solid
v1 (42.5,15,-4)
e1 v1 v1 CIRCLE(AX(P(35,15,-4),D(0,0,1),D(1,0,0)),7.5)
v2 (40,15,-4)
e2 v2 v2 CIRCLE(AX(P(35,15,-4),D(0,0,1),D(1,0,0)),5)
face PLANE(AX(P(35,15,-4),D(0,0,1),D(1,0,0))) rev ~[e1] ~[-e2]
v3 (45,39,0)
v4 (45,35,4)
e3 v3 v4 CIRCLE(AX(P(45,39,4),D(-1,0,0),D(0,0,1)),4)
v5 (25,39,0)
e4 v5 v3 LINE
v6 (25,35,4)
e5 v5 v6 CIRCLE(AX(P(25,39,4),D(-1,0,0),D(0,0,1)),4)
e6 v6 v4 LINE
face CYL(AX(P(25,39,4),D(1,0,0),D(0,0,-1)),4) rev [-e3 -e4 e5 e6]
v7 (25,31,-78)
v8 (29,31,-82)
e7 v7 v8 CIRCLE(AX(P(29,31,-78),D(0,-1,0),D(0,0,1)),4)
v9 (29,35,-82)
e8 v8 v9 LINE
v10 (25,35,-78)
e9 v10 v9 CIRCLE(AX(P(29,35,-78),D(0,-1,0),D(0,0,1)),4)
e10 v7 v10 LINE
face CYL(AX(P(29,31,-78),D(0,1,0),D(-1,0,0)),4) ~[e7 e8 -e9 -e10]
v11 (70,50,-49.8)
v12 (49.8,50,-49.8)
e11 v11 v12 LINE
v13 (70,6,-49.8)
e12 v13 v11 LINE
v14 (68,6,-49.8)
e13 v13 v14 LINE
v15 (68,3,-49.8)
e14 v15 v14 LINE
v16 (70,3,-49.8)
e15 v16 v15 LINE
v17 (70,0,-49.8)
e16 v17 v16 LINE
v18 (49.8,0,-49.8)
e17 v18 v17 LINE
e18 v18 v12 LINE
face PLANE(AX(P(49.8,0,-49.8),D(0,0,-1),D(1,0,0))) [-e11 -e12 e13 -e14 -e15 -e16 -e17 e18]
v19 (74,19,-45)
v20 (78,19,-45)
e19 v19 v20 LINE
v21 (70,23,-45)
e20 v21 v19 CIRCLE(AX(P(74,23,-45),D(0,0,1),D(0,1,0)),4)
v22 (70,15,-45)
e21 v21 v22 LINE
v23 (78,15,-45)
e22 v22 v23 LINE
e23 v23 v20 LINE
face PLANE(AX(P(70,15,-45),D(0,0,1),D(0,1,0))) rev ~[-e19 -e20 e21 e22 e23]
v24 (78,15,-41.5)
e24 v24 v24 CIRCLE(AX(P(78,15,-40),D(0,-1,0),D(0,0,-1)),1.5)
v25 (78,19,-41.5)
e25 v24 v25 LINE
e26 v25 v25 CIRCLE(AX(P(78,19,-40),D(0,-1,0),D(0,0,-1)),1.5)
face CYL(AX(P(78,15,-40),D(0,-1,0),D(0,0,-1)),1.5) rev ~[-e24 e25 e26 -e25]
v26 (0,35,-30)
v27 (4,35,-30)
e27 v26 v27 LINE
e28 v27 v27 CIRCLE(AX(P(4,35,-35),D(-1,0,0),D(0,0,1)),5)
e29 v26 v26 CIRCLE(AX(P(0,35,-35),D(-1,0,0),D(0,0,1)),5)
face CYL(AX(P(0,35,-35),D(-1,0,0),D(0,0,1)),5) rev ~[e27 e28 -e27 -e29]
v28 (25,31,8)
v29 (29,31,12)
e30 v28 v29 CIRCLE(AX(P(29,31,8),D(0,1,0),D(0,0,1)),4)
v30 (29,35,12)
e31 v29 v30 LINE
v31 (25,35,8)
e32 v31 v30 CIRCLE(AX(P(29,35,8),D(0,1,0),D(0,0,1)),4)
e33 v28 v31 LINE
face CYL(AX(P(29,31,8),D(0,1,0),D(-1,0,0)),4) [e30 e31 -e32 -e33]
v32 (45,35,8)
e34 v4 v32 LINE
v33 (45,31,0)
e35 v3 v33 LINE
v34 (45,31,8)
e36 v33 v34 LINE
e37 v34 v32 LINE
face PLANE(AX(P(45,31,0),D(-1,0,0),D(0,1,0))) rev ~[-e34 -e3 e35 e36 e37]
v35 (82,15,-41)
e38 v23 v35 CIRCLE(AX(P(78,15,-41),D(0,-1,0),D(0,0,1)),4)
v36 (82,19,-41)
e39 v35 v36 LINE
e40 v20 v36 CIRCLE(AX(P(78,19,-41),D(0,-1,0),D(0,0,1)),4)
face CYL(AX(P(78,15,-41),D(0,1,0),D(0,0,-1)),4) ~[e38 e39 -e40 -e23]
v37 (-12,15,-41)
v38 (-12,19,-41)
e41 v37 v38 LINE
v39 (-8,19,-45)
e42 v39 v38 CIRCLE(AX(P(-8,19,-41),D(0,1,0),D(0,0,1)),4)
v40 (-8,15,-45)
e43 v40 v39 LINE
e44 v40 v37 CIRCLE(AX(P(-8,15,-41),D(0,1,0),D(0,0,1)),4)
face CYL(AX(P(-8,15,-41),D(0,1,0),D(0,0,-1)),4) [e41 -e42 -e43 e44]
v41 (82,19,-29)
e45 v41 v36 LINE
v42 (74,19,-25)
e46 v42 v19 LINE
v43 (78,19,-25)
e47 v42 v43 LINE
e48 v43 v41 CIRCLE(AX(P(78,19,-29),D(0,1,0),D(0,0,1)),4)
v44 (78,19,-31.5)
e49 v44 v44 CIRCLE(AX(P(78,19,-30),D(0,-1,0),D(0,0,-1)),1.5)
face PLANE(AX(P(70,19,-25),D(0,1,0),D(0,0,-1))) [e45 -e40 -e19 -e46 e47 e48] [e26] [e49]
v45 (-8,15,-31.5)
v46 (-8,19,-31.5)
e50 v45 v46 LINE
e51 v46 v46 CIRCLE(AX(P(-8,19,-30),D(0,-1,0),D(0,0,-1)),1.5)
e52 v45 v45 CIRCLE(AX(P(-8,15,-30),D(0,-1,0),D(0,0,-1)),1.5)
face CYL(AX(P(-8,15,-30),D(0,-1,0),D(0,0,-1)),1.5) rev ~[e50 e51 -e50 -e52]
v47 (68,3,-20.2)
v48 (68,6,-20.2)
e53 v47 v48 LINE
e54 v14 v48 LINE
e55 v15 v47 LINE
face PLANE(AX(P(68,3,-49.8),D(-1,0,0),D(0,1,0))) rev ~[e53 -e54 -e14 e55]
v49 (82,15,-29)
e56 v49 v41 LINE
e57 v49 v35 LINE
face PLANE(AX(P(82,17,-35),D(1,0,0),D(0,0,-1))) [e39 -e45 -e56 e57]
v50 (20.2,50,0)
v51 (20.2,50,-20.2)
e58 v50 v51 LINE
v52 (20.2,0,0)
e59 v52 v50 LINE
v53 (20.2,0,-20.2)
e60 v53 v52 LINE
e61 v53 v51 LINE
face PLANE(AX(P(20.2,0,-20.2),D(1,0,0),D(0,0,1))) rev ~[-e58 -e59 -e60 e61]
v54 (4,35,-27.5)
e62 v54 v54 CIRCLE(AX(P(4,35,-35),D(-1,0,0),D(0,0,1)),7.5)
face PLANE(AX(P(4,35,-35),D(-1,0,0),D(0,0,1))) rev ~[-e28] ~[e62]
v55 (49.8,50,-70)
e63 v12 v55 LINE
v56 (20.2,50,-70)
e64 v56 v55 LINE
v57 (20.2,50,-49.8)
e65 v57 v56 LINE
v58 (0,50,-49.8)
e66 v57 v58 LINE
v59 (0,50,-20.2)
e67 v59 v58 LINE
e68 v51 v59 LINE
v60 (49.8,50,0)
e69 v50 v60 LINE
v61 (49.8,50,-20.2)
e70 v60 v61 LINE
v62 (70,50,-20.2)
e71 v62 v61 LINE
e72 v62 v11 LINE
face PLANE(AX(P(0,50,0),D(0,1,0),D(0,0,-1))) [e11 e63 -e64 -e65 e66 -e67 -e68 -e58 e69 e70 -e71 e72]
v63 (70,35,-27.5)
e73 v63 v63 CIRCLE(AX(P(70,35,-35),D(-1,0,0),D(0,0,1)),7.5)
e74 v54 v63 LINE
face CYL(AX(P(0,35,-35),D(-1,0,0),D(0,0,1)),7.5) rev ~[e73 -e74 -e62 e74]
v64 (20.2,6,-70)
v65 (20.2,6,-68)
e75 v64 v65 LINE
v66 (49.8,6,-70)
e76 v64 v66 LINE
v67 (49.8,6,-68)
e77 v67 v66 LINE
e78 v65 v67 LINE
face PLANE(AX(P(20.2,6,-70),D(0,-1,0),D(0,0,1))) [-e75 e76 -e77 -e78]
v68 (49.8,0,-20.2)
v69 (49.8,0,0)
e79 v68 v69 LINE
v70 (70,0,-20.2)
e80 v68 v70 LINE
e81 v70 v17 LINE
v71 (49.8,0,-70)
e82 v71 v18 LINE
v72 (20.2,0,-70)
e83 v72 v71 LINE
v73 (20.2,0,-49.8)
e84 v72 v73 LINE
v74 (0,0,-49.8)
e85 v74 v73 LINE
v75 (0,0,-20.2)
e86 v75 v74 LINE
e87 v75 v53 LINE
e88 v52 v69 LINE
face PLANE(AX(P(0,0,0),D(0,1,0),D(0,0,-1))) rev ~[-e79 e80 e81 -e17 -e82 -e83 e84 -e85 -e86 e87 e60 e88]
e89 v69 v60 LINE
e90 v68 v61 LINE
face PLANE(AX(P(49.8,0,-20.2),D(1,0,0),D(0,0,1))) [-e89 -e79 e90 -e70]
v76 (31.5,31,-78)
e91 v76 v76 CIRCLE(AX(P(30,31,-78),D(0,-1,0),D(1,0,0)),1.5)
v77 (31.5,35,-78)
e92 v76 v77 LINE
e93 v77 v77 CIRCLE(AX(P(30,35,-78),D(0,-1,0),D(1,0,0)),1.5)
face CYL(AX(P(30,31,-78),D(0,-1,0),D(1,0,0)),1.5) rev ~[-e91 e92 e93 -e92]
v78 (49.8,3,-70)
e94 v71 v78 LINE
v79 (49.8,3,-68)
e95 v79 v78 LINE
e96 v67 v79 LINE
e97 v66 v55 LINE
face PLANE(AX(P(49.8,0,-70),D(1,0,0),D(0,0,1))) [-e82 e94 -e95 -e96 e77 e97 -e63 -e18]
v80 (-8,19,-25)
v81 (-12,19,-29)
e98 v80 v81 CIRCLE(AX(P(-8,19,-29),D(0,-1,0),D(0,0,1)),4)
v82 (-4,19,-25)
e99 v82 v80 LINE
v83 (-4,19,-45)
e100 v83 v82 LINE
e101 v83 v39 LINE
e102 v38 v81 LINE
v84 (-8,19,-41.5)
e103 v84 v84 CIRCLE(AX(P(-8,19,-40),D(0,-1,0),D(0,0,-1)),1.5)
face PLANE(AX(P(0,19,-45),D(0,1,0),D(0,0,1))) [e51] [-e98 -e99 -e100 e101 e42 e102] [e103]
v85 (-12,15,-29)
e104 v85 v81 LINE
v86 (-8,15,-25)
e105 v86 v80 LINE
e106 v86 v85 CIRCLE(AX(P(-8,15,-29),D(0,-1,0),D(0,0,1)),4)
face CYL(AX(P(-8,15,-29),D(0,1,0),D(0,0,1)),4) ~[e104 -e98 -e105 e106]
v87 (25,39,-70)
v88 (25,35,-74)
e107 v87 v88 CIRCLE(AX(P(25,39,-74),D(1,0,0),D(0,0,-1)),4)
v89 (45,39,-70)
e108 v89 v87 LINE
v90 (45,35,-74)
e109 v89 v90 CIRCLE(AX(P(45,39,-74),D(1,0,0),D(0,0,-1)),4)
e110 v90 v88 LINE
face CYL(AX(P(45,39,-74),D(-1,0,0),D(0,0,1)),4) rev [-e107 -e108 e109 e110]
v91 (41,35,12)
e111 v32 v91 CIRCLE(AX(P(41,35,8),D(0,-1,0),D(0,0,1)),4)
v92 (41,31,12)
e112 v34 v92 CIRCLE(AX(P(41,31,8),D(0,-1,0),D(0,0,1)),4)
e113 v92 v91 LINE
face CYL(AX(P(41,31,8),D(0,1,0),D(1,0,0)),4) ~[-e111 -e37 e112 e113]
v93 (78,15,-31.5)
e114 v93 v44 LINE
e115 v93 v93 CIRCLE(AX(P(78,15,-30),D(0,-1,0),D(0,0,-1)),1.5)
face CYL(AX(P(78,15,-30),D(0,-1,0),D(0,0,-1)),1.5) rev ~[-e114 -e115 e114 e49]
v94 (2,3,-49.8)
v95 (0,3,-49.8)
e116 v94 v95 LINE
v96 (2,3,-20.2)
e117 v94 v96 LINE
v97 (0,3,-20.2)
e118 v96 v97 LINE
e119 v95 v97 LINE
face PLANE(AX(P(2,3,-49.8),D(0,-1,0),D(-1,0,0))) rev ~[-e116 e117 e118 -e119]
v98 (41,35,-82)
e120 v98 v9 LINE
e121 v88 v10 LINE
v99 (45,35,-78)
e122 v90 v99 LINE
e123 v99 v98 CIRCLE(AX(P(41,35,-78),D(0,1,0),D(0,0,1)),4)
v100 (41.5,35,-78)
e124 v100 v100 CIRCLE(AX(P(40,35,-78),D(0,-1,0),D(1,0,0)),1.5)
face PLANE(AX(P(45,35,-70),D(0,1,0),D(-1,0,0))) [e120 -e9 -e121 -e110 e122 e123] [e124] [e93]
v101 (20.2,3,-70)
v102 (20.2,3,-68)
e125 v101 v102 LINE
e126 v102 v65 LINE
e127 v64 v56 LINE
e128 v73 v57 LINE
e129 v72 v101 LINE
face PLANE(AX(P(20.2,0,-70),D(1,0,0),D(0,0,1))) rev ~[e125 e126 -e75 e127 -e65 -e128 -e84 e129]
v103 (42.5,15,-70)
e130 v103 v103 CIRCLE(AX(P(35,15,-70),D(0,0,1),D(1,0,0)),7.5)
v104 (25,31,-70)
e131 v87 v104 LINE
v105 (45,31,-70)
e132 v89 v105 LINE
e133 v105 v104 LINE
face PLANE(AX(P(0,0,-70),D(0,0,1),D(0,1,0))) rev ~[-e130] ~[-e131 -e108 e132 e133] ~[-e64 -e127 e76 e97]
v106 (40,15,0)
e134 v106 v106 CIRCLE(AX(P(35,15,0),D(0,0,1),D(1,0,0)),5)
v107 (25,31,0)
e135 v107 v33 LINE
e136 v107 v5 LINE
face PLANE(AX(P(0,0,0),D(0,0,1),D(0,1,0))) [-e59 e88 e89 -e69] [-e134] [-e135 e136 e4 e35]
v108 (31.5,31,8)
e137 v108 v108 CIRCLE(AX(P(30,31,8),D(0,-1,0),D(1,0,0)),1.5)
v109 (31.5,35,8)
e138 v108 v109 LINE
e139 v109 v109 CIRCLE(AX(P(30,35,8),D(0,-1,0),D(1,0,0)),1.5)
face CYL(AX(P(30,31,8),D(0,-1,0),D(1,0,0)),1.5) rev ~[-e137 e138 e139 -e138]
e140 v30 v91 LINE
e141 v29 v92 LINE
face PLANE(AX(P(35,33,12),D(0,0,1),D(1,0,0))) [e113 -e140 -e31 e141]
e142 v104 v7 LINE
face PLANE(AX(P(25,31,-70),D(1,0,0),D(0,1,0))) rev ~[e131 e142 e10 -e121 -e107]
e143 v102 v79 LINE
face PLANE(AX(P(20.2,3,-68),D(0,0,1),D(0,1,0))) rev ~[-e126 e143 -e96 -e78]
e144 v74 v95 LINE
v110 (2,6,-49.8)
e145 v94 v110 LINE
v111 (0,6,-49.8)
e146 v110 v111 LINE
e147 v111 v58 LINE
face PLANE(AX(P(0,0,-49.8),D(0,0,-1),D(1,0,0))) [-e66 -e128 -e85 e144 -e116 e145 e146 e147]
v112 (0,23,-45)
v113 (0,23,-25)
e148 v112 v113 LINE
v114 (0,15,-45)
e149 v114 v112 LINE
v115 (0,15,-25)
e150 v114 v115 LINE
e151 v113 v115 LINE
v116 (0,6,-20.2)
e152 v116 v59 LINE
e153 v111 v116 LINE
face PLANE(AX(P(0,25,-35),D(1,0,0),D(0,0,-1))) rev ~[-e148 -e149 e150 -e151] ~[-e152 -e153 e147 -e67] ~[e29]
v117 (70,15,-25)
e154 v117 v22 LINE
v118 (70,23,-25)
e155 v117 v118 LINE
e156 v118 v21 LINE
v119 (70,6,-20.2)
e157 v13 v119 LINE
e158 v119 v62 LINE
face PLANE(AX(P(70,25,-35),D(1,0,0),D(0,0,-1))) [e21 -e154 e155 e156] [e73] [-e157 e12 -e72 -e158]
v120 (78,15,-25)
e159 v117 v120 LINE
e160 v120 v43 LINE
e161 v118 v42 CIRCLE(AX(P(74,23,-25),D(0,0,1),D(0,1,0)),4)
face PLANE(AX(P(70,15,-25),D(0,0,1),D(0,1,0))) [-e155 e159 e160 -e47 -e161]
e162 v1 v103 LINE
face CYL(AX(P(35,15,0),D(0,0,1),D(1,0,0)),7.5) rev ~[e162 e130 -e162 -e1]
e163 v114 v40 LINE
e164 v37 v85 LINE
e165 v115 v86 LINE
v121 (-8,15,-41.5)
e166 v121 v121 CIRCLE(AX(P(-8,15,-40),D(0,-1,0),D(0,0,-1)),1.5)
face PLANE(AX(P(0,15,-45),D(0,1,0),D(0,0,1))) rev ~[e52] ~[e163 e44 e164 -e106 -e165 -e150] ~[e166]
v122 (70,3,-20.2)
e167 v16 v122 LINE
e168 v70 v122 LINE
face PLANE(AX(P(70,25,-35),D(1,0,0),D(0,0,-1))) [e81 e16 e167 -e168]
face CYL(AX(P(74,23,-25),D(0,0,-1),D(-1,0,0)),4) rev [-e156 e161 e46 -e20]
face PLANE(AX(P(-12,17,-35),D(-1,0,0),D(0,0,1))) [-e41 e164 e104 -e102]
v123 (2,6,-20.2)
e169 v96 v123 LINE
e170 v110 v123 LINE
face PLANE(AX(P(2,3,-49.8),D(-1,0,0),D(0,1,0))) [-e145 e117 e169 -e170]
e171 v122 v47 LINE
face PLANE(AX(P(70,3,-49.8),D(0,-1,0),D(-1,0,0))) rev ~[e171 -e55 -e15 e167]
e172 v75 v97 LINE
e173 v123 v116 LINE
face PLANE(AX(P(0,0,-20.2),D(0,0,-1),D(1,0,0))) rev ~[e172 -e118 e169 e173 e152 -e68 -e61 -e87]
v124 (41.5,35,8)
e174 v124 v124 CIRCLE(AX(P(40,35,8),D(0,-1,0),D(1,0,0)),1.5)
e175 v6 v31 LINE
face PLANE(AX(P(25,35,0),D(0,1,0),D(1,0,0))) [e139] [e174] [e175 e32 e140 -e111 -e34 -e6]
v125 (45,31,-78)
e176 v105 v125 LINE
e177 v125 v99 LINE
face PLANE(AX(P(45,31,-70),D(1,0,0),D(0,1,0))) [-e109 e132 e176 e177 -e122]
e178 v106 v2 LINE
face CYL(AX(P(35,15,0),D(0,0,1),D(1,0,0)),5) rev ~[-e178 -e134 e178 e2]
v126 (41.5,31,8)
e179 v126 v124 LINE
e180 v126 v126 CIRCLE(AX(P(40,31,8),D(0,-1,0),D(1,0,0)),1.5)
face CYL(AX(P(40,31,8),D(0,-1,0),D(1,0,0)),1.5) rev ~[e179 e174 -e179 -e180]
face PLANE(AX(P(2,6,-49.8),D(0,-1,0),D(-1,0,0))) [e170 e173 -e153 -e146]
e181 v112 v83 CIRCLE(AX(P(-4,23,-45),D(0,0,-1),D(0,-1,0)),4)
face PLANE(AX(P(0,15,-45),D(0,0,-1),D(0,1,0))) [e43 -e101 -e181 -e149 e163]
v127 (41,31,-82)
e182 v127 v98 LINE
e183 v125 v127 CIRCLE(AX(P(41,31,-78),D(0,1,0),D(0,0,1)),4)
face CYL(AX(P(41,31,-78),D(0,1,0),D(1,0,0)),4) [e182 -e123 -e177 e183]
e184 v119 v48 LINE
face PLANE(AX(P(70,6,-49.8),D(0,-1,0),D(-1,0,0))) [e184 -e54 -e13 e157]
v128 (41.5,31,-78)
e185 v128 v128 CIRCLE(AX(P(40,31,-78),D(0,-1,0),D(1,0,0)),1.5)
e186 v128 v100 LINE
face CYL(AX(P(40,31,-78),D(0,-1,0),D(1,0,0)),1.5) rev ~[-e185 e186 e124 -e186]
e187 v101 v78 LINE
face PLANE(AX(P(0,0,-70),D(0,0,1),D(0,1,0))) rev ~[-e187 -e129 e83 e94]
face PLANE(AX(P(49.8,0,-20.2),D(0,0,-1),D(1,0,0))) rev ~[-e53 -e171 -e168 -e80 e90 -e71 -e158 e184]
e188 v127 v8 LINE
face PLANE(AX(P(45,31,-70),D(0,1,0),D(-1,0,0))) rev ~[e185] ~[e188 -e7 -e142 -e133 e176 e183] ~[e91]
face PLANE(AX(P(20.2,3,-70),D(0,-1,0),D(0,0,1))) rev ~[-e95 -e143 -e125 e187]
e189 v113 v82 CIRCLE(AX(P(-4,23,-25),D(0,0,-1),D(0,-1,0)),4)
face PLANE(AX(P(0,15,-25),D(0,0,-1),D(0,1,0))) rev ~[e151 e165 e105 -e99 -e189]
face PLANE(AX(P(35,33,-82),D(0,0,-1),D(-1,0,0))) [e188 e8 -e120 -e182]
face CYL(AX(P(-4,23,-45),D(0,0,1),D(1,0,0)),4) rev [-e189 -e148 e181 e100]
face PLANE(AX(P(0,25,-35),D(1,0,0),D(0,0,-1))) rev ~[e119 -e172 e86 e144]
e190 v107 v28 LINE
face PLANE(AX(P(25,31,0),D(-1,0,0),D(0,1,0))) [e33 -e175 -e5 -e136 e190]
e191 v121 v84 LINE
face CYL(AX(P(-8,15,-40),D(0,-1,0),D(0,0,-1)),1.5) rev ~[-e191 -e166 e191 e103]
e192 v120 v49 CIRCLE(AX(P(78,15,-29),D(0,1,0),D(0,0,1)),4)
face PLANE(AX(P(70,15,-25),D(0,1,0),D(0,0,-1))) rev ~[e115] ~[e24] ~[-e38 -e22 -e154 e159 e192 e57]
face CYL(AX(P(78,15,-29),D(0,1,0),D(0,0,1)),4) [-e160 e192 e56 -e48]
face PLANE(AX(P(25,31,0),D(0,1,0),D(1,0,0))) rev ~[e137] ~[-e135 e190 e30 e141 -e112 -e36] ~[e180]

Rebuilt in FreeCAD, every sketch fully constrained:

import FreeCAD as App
import Part
import Sketcher
Q = App.Units.Quantity


def edges_at(feature, points):
    """Names of the edges that pass closest to the given points."""
    edges = feature.Shape.Edges
    near = lambda p: min(range(len(edges)), key=lambda i: edges[i].distToShape(Part.Vertex(*p))[0])
    return sorted({f"Edge{near(p) + 1}" for p in points})

doc = App.newDocument("Part")
body = doc.addObject("PartDesign::Body", "Body")

sketch1 = body.newObject("Sketcher::SketchObject", "Sketch")
sketch1.AttachmentSupport = (doc.getObject("YZ_Plane"), [""])
sketch1.MapMode = "FlatFace"
sketch1.addGeometry([
    Part.LineSegment(App.Vector(50, 0, 0), App.Vector(0, 0, 0)),
    Part.LineSegment(App.Vector(0, 0, 0), App.Vector(0, -70, 0)),
    Part.LineSegment(App.Vector(0, -70, 0), App.Vector(50, -70, 0)),
    Part.LineSegment(App.Vector(50, -70, 0), App.Vector(50, 0, 0)),
], False)
sketch1.addConstraint([
    Sketcher.Constraint("Coincident", 0, 2, 1, 1),
    Sketcher.Constraint("Coincident", 1, 2, 2, 1),
    Sketcher.Constraint("Coincident", 2, 2, 3, 1),
    Sketcher.Constraint("Coincident", 3, 2, 0, 1),
    Sketcher.Constraint("Horizontal", 0),
    Sketcher.Constraint("Vertical", 1),
    Sketcher.Constraint("Horizontal", 2),
    Sketcher.Constraint("Vertical", 3),
    Sketcher.Constraint("Coincident", 0, 2, -1, 1),
    Sketcher.Constraint("DistanceX", 0, 2, 0, 1, Q("50 mm")),
    Sketcher.Constraint("DistanceY", 1, 2, 1, 1, Q("70 mm")),
])
pad1 = body.newObject("PartDesign::Pad", "Pad")
pad1.Profile = sketch1
pad1.Length = 70

sketch2 = body.newObject("Sketcher::SketchObject", "Sketch001")
sketch2.AttachmentSupport = (doc.getObject("XY_Plane"), [""])
sketch2.MapMode = "FlatFace"
sketch2.addGeometry(Part.Circle(App.Vector(35, 15, 0), App.Vector(0, 0, 1), 7.5), False)
sketch2.addConstraint([
    Sketcher.Constraint("Diameter", 0, Q("15 mm")),
    Sketcher.Constraint("DistanceX", -1, 1, 0, 3, Q("35 mm")),
    Sketcher.Constraint("DistanceY", -1, 1, 0, 3, Q("15 mm")),
])
pocket1 = body.newObject("PartDesign::Pocket", "Pocket")
pocket1.Profile = sketch2
pocket1.Type = "ThroughAll"

sketch3 = body.newObject("Sketcher::SketchObject", "Sketch002")
sketch3.AttachmentSupport = (doc.getObject("YZ_Plane"), [""])
sketch3.MapMode = "FlatFace"
sketch3.addGeometry(Part.Circle(App.Vector(35, -35, 0), App.Vector(0, 0, 1), 7.5), False)
sketch3.addConstraint([
    Sketcher.Constraint("Diameter", 0, Q("15 mm")),
    Sketcher.Constraint("DistanceX", -1, 1, 0, 3, Q("35 mm")),
    Sketcher.Constraint("DistanceY", 0, 3, -1, 1, Q("35 mm")),
])
pocket2 = body.newObject("PartDesign::Pocket", "Pocket001")
pocket2.Profile = sketch3
pocket2.Type = "ThroughAll"
pocket2.Reversed = True

sketch4 = body.newObject("Sketcher::SketchObject", "Sketch003")
sketch4.AttachmentSupport = (doc.getObject("XZ_Plane"), [""])
sketch4.MapMode = "FlatFace"
sketch4.addGeometry([
    Part.LineSegment(App.Vector(0, -49.8, 0), App.Vector(0, -70, 0)),
    Part.LineSegment(App.Vector(0, -70, 0), App.Vector(20.2, -70, 0)),
    Part.LineSegment(App.Vector(20.2, -70, 0), App.Vector(20.2, -49.8, 0)),
    Part.LineSegment(App.Vector(20.2, -49.8, 0), App.Vector(0, -49.8, 0)),
    Part.LineSegment(App.Vector(0, 0, 0), App.Vector(0, -20.2, 0)),
    Part.LineSegment(App.Vector(0, -20.2, 0), App.Vector(20.2, -20.2, 0)),
    Part.LineSegment(App.Vector(20.2, -20.2, 0), App.Vector(20.2, 0, 0)),
    Part.LineSegment(App.Vector(20.2, 0, 0), App.Vector(0, 0, 0)),
    Part.LineSegment(App.Vector(49.8, 0, 0), App.Vector(49.8, -20.2, 0)),
    Part.LineSegment(App.Vector(49.8, -20.2, 0), App.Vector(70, -20.2, 0)),
    Part.LineSegment(App.Vector(70, -20.2, 0), App.Vector(70, 0, 0)),
    Part.LineSegment(App.Vector(70, 0, 0), App.Vector(49.8, 0, 0)),
    Part.LineSegment(App.Vector(49.8, -49.8, 0), App.Vector(49.8, -70, 0)),
    Part.LineSegment(App.Vector(49.8, -70, 0), App.Vector(70, -70, 0)),
    Part.LineSegment(App.Vector(70, -70, 0), App.Vector(70, -49.8, 0)),
    Part.LineSegment(App.Vector(70, -49.8, 0), App.Vector(49.8, -49.8, 0)),
], False)
sketch4.addConstraint([
    Sketcher.Constraint("Coincident", 0, 2, 1, 1),
    Sketcher.Constraint("Coincident", 1, 2, 2, 1),
    Sketcher.Constraint("Coincident", 2, 2, 3, 1),
    Sketcher.Constraint("Coincident", 3, 2, 0, 1),
    Sketcher.Constraint("Coincident", 4, 2, 5, 1),
    Sketcher.Constraint("Coincident", 5, 2, 6, 1),
    Sketcher.Constraint("Coincident", 6, 2, 7, 1),
    Sketcher.Constraint("Coincident", 7, 2, 4, 1),
    Sketcher.Constraint("Coincident", 8, 2, 9, 1),
    Sketcher.Constraint("Coincident", 9, 2, 10, 1),
    Sketcher.Constraint("Coincident", 10, 2, 11, 1),
    Sketcher.Constraint("Coincident", 11, 2, 8, 1),
    Sketcher.Constraint("Coincident", 12, 2, 13, 1),
    Sketcher.Constraint("Coincident", 13, 2, 14, 1),
    Sketcher.Constraint("Coincident", 14, 2, 15, 1),
    Sketcher.Constraint("Coincident", 15, 2, 12, 1),
    Sketcher.Constraint("Vertical", 0),
    Sketcher.Constraint("Horizontal", 1),
    Sketcher.Constraint("Vertical", 2),
    Sketcher.Constraint("Horizontal", 3),
    Sketcher.Constraint("Vertical", 4),
    Sketcher.Constraint("Horizontal", 5),
    Sketcher.Constraint("Vertical", 6),
    Sketcher.Constraint("Horizontal", 7),
    Sketcher.Constraint("Vertical", 8),
    Sketcher.Constraint("Horizontal", 9),
    Sketcher.Constraint("Vertical", 10),
    Sketcher.Constraint("Horizontal", 11),
    Sketcher.Constraint("Vertical", 12),
    Sketcher.Constraint("Horizontal", 13),
    Sketcher.Constraint("Vertical", 14),
    Sketcher.Constraint("Horizontal", 15),
    Sketcher.Constraint("Coincident", 7, 2, -1, 1),
    Sketcher.Constraint("PointOnObject", 0, 2, -2),
    Sketcher.Constraint("PointOnObject", 10, 2, -1),
    Sketcher.Constraint("Horizontal", 5, 2, 8, 2),
    Sketcher.Constraint("Horizontal", 1, 2, 12, 2),
    Sketcher.Constraint("Horizontal", 3, 2, 14, 2),
    Sketcher.Constraint("Vertical", 2, 2, 5, 2),
    Sketcher.Constraint("Vertical", 11, 2, 12, 2),
    Sketcher.Constraint("Vertical", 10, 2, 13, 2),
    Sketcher.Constraint("Equal", 7, 9),
    Sketcher.Constraint("Equal", 15, 0),
    Sketcher.Constraint("Equal", 2, 4),
    Sketcher.Constraint("DistanceX", 1, 1, 1, 2, Q("20.2 mm")),
    Sketcher.Constraint("DistanceY", 0, 2, -1, 1, Q("70 mm")),
    Sketcher.Constraint("DistanceX", -1, 1, 9, 2, Q("70 mm")),
])
pocket3 = body.newObject("PartDesign::Pocket", "Pocket002")
pocket3.Profile = sketch4
pocket3.Type = "ThroughAll"

sketch5 = body.newObject("Sketcher::SketchObject", "Sketch004")
sketch5.AttachmentSupport = (doc.getObject("XY_Plane"), [""])
sketch5.MapMode = "FlatFace"
sketch5.addGeometry([
    Part.Circle(App.Vector(35, 15, 0), App.Vector(0, 0, 1), 11.736746),
    Part.Circle(App.Vector(35, 15, 0), App.Vector(0, 0, 1), 5),
], False)
sketch5.addConstraint([
    Sketcher.Constraint("Coincident", 1, 3, 0, 3),
    Sketcher.Constraint("Diameter", 1, Q("10 mm")),
    Sketcher.Constraint("DistanceX", -1, 1, 0, 3, Q("35 mm")),
    Sketcher.Constraint("DistanceY", -1, 1, 0, 3, Q("15 mm")),
    Sketcher.Constraint("Diameter", 0, Q("23.473493 mm")),
])
pad2 = body.newObject("PartDesign::Pad", "Pad001")
pad2.Profile = sketch5
pad2.Length = 4
pad2.Reversed = True

sketch6 = body.newObject("Sketcher::SketchObject", "Sketch005")
sketch6.AttachmentSupport = (doc.getObject("YZ_Plane"), [""])
sketch6.MapMode = "FlatFace"
sketch6.addGeometry([
    Part.Circle(App.Vector(35, -35, 0), App.Vector(0, 0, 1), 12.196694),
    Part.Circle(App.Vector(35, -35, 0), App.Vector(0, 0, 1), 5),
], False)
sketch6.addConstraint([
    Sketcher.Constraint("Coincident", 1, 3, 0, 3),
    Sketcher.Constraint("Diameter", 1, Q("10 mm")),
    Sketcher.Constraint("DistanceX", -1, 1, 0, 3, Q("35 mm")),
    Sketcher.Constraint("DistanceY", 0, 3, -1, 1, Q("35 mm")),
    Sketcher.Constraint("Diameter", 0, Q("24.393388 mm")),
])
pad3 = body.newObject("PartDesign::Pad", "Pad002")
pad3.Profile = sketch6
pad3.Length = 4

sketch7 = body.newObject("Sketcher::SketchObject", "Sketch006")
sketch7.AttachmentSupport = (doc.getObject("YZ_Plane"), [""])
sketch7.MapMode = "FlatFace"
sketch7.AttachmentOffset = App.Placement(App.Vector(0, 0, 20.2), App.Rotation())
sketch7.addGeometry([
    Part.LineSegment(App.Vector(6, -70, 0), App.Vector(3, -70, 0)),
    Part.LineSegment(App.Vector(3, -70, 0), App.Vector(3, -68, 0)),
    Part.LineSegment(App.Vector(3, -68, 0), App.Vector(6, -68, 0)),
    Part.LineSegment(App.Vector(6, -68, 0), App.Vector(6, -70, 0)),
], False)
sketch7.addConstraint([
    Sketcher.Constraint("Coincident", 0, 2, 1, 1),
    Sketcher.Constraint("Coincident", 1, 2, 2, 1),
    Sketcher.Constraint("Coincident", 2, 2, 3, 1),
    Sketcher.Constraint("Coincident", 3, 2, 0, 1),
    Sketcher.Constraint("Horizontal", 0),
    Sketcher.Constraint("Vertical", 1),
    Sketcher.Constraint("Horizontal", 2),
    Sketcher.Constraint("Vertical", 3),
    Sketcher.Constraint("DistanceX", 0, 2, 0, 1, Q("3 mm")),
    Sketcher.Constraint("DistanceY", 1, 1, 1, 2, Q("2 mm")),
    Sketcher.Constraint("DistanceX", -1, 1, 0, 2, Q("3 mm")),
    Sketcher.Constraint("DistanceY", 0, 2, -1, 1, Q("70 mm")),
])
pocket4 = body.newObject("PartDesign::Pocket", "Pocket003")
pocket4.Profile = sketch7
pocket4.Type = "ThroughAll"
pocket4.Reversed = True

sketch8 = body.newObject("Sketcher::SketchObject", "Sketch007")
sketch8.AttachmentSupport = (doc.getObject("XY_Plane"), [""])
sketch8.MapMode = "FlatFace"
sketch8.AttachmentOffset = App.Placement(App.Vector(0, 0, -49.8), App.Rotation())
sketch8.addGeometry([
    Part.LineSegment(App.Vector(2, 6, 0), App.Vector(2, 3, 0)),
    Part.LineSegment(App.Vector(2, 3, 0), App.Vector(0, 3, 0)),
    Part.LineSegment(App.Vector(0, 3, 0), App.Vector(0, 6, 0)),
    Part.LineSegment(App.Vector(0, 6, 0), App.Vector(2, 6, 0)),
], False)
sketch8.addConstraint([
    Sketcher.Constraint("Coincident", 0, 2, 1, 1),
    Sketcher.Constraint("Coincident", 1, 2, 2, 1),
    Sketcher.Constraint("Coincident", 2, 2, 3, 1),
    Sketcher.Constraint("Coincident", 3, 2, 0, 1),
    Sketcher.Constraint("Vertical", 0),
    Sketcher.Constraint("Horizontal", 1),
    Sketcher.Constraint("Vertical", 2),
    Sketcher.Constraint("Horizontal", 3),
    Sketcher.Constraint("PointOnObject", 1, 2, -2),
    Sketcher.Constraint("DistanceX", 1, 2, 1, 1, Q("2 mm")),
    Sketcher.Constraint("DistanceY", 0, 2, 0, 1, Q("3 mm")),
    Sketcher.Constraint("DistanceY", -1, 1, 0, 2, Q("3 mm")),
])
pocket5 = body.newObject("PartDesign::Pocket", "Pocket004")
pocket5.Profile = sketch8
pocket5.Type = "ThroughAll"
pocket5.Reversed = True

sketch9 = body.newObject("Sketcher::SketchObject", "Sketch008")
sketch9.AttachmentSupport = (doc.getObject("XY_Plane"), [""])
sketch9.MapMode = "FlatFace"
sketch9.AttachmentOffset = App.Placement(App.Vector(0, 0, -49.8), App.Rotation())
sketch9.addGeometry([
    Part.LineSegment(App.Vector(70, 6, 0), App.Vector(70, 3, 0)),
    Part.LineSegment(App.Vector(70, 3, 0), App.Vector(68, 3, 0)),
    Part.LineSegment(App.Vector(68, 3, 0), App.Vector(68, 6, 0)),
    Part.LineSegment(App.Vector(68, 6, 0), App.Vector(70, 6, 0)),
], False)
sketch9.addConstraint([
    Sketcher.Constraint("Coincident", 0, 2, 1, 1),
    Sketcher.Constraint("Coincident", 1, 2, 2, 1),
    Sketcher.Constraint("Coincident", 2, 2, 3, 1),
    Sketcher.Constraint("Coincident", 3, 2, 0, 1),
    Sketcher.Constraint("Vertical", 0),
    Sketcher.Constraint("Horizontal", 1),
    Sketcher.Constraint("Vertical", 2),
    Sketcher.Constraint("Horizontal", 3),
    Sketcher.Constraint("DistanceX", 1, 2, 1, 1, Q("2 mm")),
    Sketcher.Constraint("DistanceY", 0, 2, 0, 1, Q("3 mm")),
    Sketcher.Constraint("DistanceX", -1, 1, 0, 2, Q("70 mm")),
    Sketcher.Constraint("DistanceY", -1, 1, 0, 2, Q("3 mm")),
])
pocket6 = body.newObject("PartDesign::Pocket", "Pocket005")
pocket6.Profile = sketch9
pocket6.Type = "ThroughAll"
pocket6.Reversed = True

sketch10 = body.newObject("Sketcher::SketchObject", "Sketch009")
sketch10.AttachmentSupport = (doc.getObject("YZ_Plane"), [""])
sketch10.MapMode = "FlatFace"
sketch10.addGeometry([
    Part.LineSegment(App.Vector(19, -45, 0), App.Vector(15, -45, 0)),
    Part.LineSegment(App.Vector(15, -45, 0), App.Vector(15, -25, 0)),
    Part.LineSegment(App.Vector(15, -25, 0), App.Vector(19, -25, 0)),
    Part.LineSegment(App.Vector(19, -25, 0), App.Vector(19, -45, 0)),
], False)
sketch10.addConstraint([
    Sketcher.Constraint("Coincident", 0, 2, 1, 1),
    Sketcher.Constraint("Coincident", 1, 2, 2, 1),
    Sketcher.Constraint("Coincident", 2, 2, 3, 1),
    Sketcher.Constraint("Coincident", 3, 2, 0, 1),
    Sketcher.Constraint("Horizontal", 0),
    Sketcher.Constraint("Vertical", 1),
    Sketcher.Constraint("Horizontal", 2),
    Sketcher.Constraint("Vertical", 3),
    Sketcher.Constraint("DistanceX", 0, 2, 0, 1, Q("4 mm")),
    Sketcher.Constraint("DistanceY", 1, 1, 1, 2, Q("20 mm")),
    Sketcher.Constraint("DistanceX", -1, 1, 0, 2, Q("15 mm")),
    Sketcher.Constraint("DistanceY", 0, 2, -1, 1, Q("45 mm")),
])
pad4 = body.newObject("PartDesign::Pad", "Pad003")
pad4.Profile = sketch10
pad4.Length = 12
pad4.Reversed = True

sketch11 = body.newObject("Sketcher::SketchObject", "Sketch010")
sketch11.AttachmentSupport = (doc.getObject("XZ_Plane"), [""])
sketch11.MapMode = "FlatFace"
sketch11.AttachmentOffset = App.Placement(App.Vector(0, 0, -15), App.Rotation())
sketch11.addGeometry([
    Part.Circle(App.Vector(-8, -30, 0), App.Vector(0, 0, 1), 1.5),
    Part.Circle(App.Vector(-8, -40, 0), App.Vector(0, 0, 1), 1.5),
], False)
sketch11.addConstraint([
    Sketcher.Constraint("Equal", 0, 1),
    Sketcher.Constraint("Vertical", 0, 3, 1, 3),
    Sketcher.Constraint("Diameter", 0, Q("3 mm")),
    Sketcher.Constraint("DistanceX", 0, 3, -1, 1, Q("8 mm")),
    Sketcher.Constraint("DistanceY", 0, 3, -1, 1, Q("30 mm")),
    Sketcher.Constraint("DistanceY", 1, 3, -1, 1, Q("40 mm")),
])
pocket7 = body.newObject("PartDesign::Pocket", "Pocket006")
pocket7.Profile = sketch11
pocket7.Type = "ThroughAll"
doc.recompute()

fillet = body.newObject("PartDesign::Fillet", "Fillet")
fillet.Base = (pocket7, edges_at(pocket7, [(-12, 17, -25), (-12, 17, -45)]))
fillet.Radius = 4

sketch12 = body.newObject("Sketcher::SketchObject", "Sketch011")
sketch12.AttachmentSupport = (doc.getObject("YZ_Plane"), [""])
sketch12.MapMode = "FlatFace"
sketch12.AttachmentOffset = App.Placement(App.Vector(0, 0, 70), App.Rotation())
sketch12.addGeometry([
    Part.LineSegment(App.Vector(19, -25, 0), App.Vector(15, -25, 0)),
    Part.LineSegment(App.Vector(15, -25, 0), App.Vector(15, -45, 0)),
    Part.LineSegment(App.Vector(15, -45, 0), App.Vector(19, -45, 0)),
    Part.LineSegment(App.Vector(19, -45, 0), App.Vector(19, -25, 0)),
], False)
sketch12.addConstraint([
    Sketcher.Constraint("Coincident", 0, 2, 1, 1),
    Sketcher.Constraint("Coincident", 1, 2, 2, 1),
    Sketcher.Constraint("Coincident", 2, 2, 3, 1),
    Sketcher.Constraint("Coincident", 3, 2, 0, 1),
    Sketcher.Constraint("Horizontal", 0),
    Sketcher.Constraint("Vertical", 1),
    Sketcher.Constraint("Horizontal", 2),
    Sketcher.Constraint("Vertical", 3),
    Sketcher.Constraint("DistanceX", 0, 2, 0, 1, Q("4 mm")),
    Sketcher.Constraint("DistanceY", 1, 2, 1, 1, Q("20 mm")),
    Sketcher.Constraint("DistanceX", -1, 1, 0, 2, Q("15 mm")),
    Sketcher.Constraint("DistanceY", 0, 2, -1, 1, Q("25 mm")),
])
pad5 = body.newObject("PartDesign::Pad", "Pad004")
pad5.Profile = sketch12
pad5.Length = 12

sketch13 = body.newObject("Sketcher::SketchObject", "Sketch012")
sketch13.AttachmentSupport = (doc.getObject("XZ_Plane"), [""])
sketch13.MapMode = "FlatFace"
sketch13.AttachmentOffset = App.Placement(App.Vector(0, 0, -15), App.Rotation())
sketch13.addGeometry([
    Part.Circle(App.Vector(78, -40, 0), App.Vector(0, 0, 1), 1.5),
    Part.Circle(App.Vector(78, -30, 0), App.Vector(0, 0, 1), 1.5),
], False)
sketch13.addConstraint([
    Sketcher.Constraint("Equal", 0, 1),
    Sketcher.Constraint("Vertical", 0, 3, 1, 3),
    Sketcher.Constraint("Diameter", 0, Q("3 mm")),
    Sketcher.Constraint("DistanceX", -1, 1, 0, 3, Q("78 mm")),
    Sketcher.Constraint("DistanceY", 0, 3, -1, 1, Q("40 mm")),
    Sketcher.Constraint("DistanceY", 1, 3, -1, 1, Q("30 mm")),
])
pocket8 = body.newObject("PartDesign::Pocket", "Pocket007")
pocket8.Profile = sketch13
pocket8.Type = "ThroughAll"
doc.recompute()

fillet2 = body.newObject("PartDesign::Fillet", "Fillet001")
fillet2.Base = (pocket8, edges_at(pocket8, [(82, 17, -45), (82, 17, -25)]))
fillet2.Radius = 4

sketch14 = body.newObject("Sketcher::SketchObject", "Sketch013")
sketch14.AttachmentSupport = (doc.getObject("XY_Plane"), [""])
sketch14.MapMode = "FlatFace"
sketch14.addGeometry([
    Part.LineSegment(App.Vector(25, 35, 0), App.Vector(25, 31, 0)),
    Part.LineSegment(App.Vector(25, 31, 0), App.Vector(45, 31, 0)),
    Part.LineSegment(App.Vector(45, 31, 0), App.Vector(45, 35, 0)),
    Part.LineSegment(App.Vector(45, 35, 0), App.Vector(25, 35, 0)),
], False)
sketch14.addConstraint([
    Sketcher.Constraint("Coincident", 0, 2, 1, 1),
    Sketcher.Constraint("Coincident", 1, 2, 2, 1),
    Sketcher.Constraint("Coincident", 2, 2, 3, 1),
    Sketcher.Constraint("Coincident", 3, 2, 0, 1),
    Sketcher.Constraint("Vertical", 0),
    Sketcher.Constraint("Horizontal", 1),
    Sketcher.Constraint("Vertical", 2),
    Sketcher.Constraint("Horizontal", 3),
    Sketcher.Constraint("DistanceX", 1, 1, 1, 2, Q("20 mm")),
    Sketcher.Constraint("DistanceY", 0, 2, 0, 1, Q("4 mm")),
    Sketcher.Constraint("DistanceX", -1, 1, 0, 2, Q("25 mm")),
    Sketcher.Constraint("DistanceY", -1, 1, 0, 2, Q("31 mm")),
])
pad6 = body.newObject("PartDesign::Pad", "Pad005")
pad6.Profile = sketch14
pad6.Length = 12

sketch15 = body.newObject("Sketcher::SketchObject", "Sketch014")
sketch15.AttachmentSupport = (doc.getObject("XZ_Plane"), [""])
sketch15.MapMode = "FlatFace"
sketch15.AttachmentOffset = App.Placement(App.Vector(0, 0, -31), App.Rotation())
sketch15.addGeometry([
    Part.Circle(App.Vector(40, 8, 0), App.Vector(0, 0, 1), 1.5),
    Part.Circle(App.Vector(30, 8, 0), App.Vector(0, 0, 1), 1.5),
], False)
sketch15.addConstraint([
    Sketcher.Constraint("Equal", 0, 1),
    Sketcher.Constraint("Horizontal", 0, 3, 1, 3),
    Sketcher.Constraint("Diameter", 0, Q("3 mm")),
    Sketcher.Constraint("DistanceX", -1, 1, 0, 3, Q("40 mm")),
    Sketcher.Constraint("DistanceY", -1, 1, 0, 3, Q("8 mm")),
    Sketcher.Constraint("DistanceX", -1, 1, 1, 3, Q("30 mm")),
])
pocket9 = body.newObject("PartDesign::Pocket", "Pocket008")
pocket9.Profile = sketch15
pocket9.Type = "ThroughAll"
doc.recompute()

fillet3 = body.newObject("PartDesign::Fillet", "Fillet002")
fillet3.Base = (pocket9, edges_at(pocket9, [(45, 33, 12), (25, 33, 12)]))
fillet3.Radius = 4

sketch16 = body.newObject("Sketcher::SketchObject", "Sketch015")
sketch16.AttachmentSupport = (doc.getObject("XY_Plane"), [""])
sketch16.MapMode = "FlatFace"
sketch16.AttachmentOffset = App.Placement(App.Vector(0, 0, -70), App.Rotation())
sketch16.addGeometry([
    Part.LineSegment(App.Vector(45, 35, 0), App.Vector(45, 31, 0)),
    Part.LineSegment(App.Vector(45, 31, 0), App.Vector(25, 31, 0)),
    Part.LineSegment(App.Vector(25, 31, 0), App.Vector(25, 35, 0)),
    Part.LineSegment(App.Vector(25, 35, 0), App.Vector(45, 35, 0)),
], False)
sketch16.addConstraint([
    Sketcher.Constraint("Coincident", 0, 2, 1, 1),
    Sketcher.Constraint("Coincident", 1, 2, 2, 1),
    Sketcher.Constraint("Coincident", 2, 2, 3, 1),
    Sketcher.Constraint("Coincident", 3, 2, 0, 1),
    Sketcher.Constraint("Vertical", 0),
    Sketcher.Constraint("Horizontal", 1),
    Sketcher.Constraint("Vertical", 2),
    Sketcher.Constraint("Horizontal", 3),
    Sketcher.Constraint("DistanceX", 1, 2, 1, 1, Q("20 mm")),
    Sketcher.Constraint("DistanceY", 0, 2, 0, 1, Q("4 mm")),
    Sketcher.Constraint("DistanceX", -1, 1, 0, 2, Q("45 mm")),
    Sketcher.Constraint("DistanceY", -1, 1, 0, 2, Q("31 mm")),
])
pad7 = body.newObject("PartDesign::Pad", "Pad006")
pad7.Profile = sketch16
pad7.Length = 12
pad7.Reversed = True

sketch17 = body.newObject("Sketcher::SketchObject", "Sketch016")
sketch17.AttachmentSupport = (doc.getObject("XZ_Plane"), [""])
sketch17.MapMode = "FlatFace"
sketch17.AttachmentOffset = App.Placement(App.Vector(0, 0, -31), App.Rotation())
sketch17.addGeometry([
    Part.Circle(App.Vector(30, -78, 0), App.Vector(0, 0, 1), 1.5),
    Part.Circle(App.Vector(40, -78, 0), App.Vector(0, 0, 1), 1.5),
], False)
sketch17.addConstraint([
    Sketcher.Constraint("Equal", 0, 1),
    Sketcher.Constraint("Horizontal", 0, 3, 1, 3),
    Sketcher.Constraint("Diameter", 0, Q("3 mm")),
    Sketcher.Constraint("DistanceX", -1, 1, 0, 3, Q("30 mm")),
    Sketcher.Constraint("DistanceY", 0, 3, -1, 1, Q("78 mm")),
    Sketcher.Constraint("DistanceX", -1, 1, 1, 3, Q("40 mm")),
])
pocket10 = body.newObject("PartDesign::Pocket", "Pocket009")
pocket10.Profile = sketch17
pocket10.Type = "ThroughAll"
doc.recompute()

fillet4 = body.newObject("PartDesign::Fillet", "Fillet003")
fillet4.Base = (pocket10, edges_at(pocket10, [(25, 33, -82), (45, 33, -82)]))
fillet4.Radius = 4
doc.recompute()

fillet5 = body.newObject("PartDesign::Fillet", "Fillet004")
fillet5.Base = (fillet4, edges_at(fillet4, [
    (0, 19, -35),
    (70, 19, -35),
    (35, 35, 0),
    (35, 35, -70),
]))
fillet5.Radius = 4

doc.recompute()
